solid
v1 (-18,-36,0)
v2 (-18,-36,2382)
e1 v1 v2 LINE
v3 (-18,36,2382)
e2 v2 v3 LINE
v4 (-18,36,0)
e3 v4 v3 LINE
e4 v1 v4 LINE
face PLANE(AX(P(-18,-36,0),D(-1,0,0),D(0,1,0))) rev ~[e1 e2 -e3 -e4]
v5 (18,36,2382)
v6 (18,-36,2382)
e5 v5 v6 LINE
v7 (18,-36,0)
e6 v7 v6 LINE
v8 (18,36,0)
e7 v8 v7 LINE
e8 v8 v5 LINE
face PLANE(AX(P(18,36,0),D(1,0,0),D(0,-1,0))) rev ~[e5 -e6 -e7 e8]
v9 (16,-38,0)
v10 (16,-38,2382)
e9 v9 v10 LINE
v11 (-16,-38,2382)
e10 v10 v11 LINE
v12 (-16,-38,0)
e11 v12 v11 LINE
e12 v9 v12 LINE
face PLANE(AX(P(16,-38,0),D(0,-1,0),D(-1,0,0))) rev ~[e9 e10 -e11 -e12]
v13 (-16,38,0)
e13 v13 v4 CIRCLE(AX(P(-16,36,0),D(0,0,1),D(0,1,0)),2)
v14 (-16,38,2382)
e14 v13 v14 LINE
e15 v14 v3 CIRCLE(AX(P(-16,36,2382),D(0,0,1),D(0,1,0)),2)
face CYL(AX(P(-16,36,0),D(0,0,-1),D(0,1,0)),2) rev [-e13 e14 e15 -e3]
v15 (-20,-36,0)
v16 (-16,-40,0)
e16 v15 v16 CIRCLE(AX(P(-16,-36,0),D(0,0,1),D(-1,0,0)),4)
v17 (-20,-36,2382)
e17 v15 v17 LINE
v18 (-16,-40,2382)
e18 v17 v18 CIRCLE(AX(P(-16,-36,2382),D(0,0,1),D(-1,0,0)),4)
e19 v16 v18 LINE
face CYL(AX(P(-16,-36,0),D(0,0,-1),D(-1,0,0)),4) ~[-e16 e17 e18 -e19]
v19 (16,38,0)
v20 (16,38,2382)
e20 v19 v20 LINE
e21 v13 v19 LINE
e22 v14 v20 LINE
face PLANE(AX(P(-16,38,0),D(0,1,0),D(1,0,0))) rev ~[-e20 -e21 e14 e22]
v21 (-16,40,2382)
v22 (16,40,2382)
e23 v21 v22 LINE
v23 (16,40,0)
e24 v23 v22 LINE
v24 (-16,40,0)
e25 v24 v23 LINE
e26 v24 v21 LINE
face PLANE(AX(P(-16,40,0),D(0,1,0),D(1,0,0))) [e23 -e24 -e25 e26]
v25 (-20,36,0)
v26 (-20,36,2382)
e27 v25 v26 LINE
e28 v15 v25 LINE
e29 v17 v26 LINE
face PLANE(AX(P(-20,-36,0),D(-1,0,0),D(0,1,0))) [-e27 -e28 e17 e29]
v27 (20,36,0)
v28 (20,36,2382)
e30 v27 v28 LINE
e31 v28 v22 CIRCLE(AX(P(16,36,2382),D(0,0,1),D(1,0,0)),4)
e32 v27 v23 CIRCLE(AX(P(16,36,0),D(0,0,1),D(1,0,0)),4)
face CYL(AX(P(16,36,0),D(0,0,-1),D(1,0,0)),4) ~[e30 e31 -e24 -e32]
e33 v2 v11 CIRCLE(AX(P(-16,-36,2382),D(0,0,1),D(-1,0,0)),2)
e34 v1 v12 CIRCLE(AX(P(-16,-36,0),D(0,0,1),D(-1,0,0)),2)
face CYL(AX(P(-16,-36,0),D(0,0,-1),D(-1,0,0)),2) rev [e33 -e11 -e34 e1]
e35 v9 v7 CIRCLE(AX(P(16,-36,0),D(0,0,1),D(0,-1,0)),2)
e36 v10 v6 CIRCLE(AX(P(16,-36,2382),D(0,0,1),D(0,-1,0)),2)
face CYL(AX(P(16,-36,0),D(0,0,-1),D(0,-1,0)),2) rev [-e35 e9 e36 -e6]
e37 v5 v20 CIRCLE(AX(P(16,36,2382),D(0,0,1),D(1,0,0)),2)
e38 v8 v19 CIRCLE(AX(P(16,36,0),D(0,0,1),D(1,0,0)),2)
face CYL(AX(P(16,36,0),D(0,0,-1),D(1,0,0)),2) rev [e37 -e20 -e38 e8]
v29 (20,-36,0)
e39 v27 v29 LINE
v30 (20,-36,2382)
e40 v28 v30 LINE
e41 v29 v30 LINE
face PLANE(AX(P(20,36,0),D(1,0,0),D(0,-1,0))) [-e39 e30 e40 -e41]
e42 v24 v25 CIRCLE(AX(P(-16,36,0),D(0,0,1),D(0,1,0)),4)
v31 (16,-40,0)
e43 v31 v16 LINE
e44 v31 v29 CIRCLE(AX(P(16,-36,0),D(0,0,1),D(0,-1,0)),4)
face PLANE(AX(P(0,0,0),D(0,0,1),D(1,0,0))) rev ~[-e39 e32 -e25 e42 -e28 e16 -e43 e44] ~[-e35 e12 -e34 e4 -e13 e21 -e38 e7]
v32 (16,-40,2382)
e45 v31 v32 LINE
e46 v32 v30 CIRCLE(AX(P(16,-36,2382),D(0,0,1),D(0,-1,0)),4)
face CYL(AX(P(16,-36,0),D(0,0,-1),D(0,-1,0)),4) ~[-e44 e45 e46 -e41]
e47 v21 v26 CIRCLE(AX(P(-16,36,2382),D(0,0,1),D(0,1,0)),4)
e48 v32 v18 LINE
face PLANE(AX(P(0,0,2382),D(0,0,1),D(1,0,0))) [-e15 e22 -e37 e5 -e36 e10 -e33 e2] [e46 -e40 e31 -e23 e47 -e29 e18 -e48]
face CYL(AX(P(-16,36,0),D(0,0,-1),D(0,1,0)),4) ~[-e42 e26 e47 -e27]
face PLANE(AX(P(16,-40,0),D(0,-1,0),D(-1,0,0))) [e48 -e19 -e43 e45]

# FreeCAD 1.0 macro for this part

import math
import FreeCAD as App
import Part
import Sketcher

V = App.Vector

doc = App.newDocument("Part")
body = doc.addObject("PartDesign::Body", "Body")

# Sketch on XY plane
sketch1 = body.newObject("Sketcher::SketchObject", "Sketch")
sketch1.AttachmentSupport = (doc.getObject("XY_Plane"), [""])
sketch1.MapMode = "FlatFace"
sketch1.addGeometry(Part.LineSegment(V(-20, 36, 0), V(-20, -36, 0)), False)
sketch1.addGeometry(Part.ArcOfCircle(Part.Circle(V(-16, -36, 0), V(0, 0, 1), 4), math.radians(180), math.radians(270)), False)
sketch1.addGeometry(Part.LineSegment(V(-16, -40, 0), V(16, -40, 0)), False)
sketch1.addGeometry(Part.ArcOfCircle(Part.Circle(V(16, -36, 0), V(0, 0, 1), 4), math.radians(-90), math.radians(0)), False)
sketch1.addGeometry(Part.LineSegment(V(20, -36, 0), V(20, 36, 0)), False)
sketch1.addGeometry(Part.ArcOfCircle(Part.Circle(V(16, 36, 0), V(0, 0, 1), 4), math.radians(0), math.radians(90)), False)
sketch1.addGeometry(Part.LineSegment(V(16, 40, 0), V(-16, 40, 0)), False)
sketch1.addGeometry(Part.ArcOfCircle(Part.Circle(V(-16, 36, 0), V(0, 0, 1), 4), math.radians(90), math.radians(180)), False)
sketch1.addGeometry(Part.ArcOfCircle(Part.Circle(V(-16, 36, 0), V(0, 0, 1), 2), math.radians(90), math.radians(180)), False)
sketch1.addGeometry(Part.LineSegment(V(-16, 38, 0), V(16, 38, 0)), False)
sketch1.addGeometry(Part.ArcOfCircle(Part.Circle(V(16, 36, 0), V(0, 0, 1), 2), math.radians(0), math.radians(90)), False)
sketch1.addGeometry(Part.LineSegment(V(18, 36, 0), V(18, -36, 0)), False)
sketch1.addGeometry(Part.ArcOfCircle(Part.Circle(V(16, -36, 0), V(0, 0, 1), 2), math.radians(-90), math.radians(0)), False)
sketch1.addGeometry(Part.LineSegment(V(16, -38, 0), V(-16, -38, 0)), False)
sketch1.addGeometry(Part.ArcOfCircle(Part.Circle(V(-16, -36, 0), V(0, 0, 1), 2), math.radians(180), math.radians(270)), False)
sketch1.addGeometry(Part.LineSegment(V(-18, -36, 0), V(-18, 36, 0)), False)
sketch1.addConstraint(Sketcher.Constraint("Tangent", 0, 2, 1, 1))
sketch1.addConstraint(Sketcher.Constraint("Tangent", 1, 2, 2, 1))
sketch1.addConstraint(Sketcher.Constraint("Tangent", 2, 2, 3, 1))
sketch1.addConstraint(Sketcher.Constraint("Tangent", 3, 2, 4, 1))
sketch1.addConstraint(Sketcher.Constraint("Tangent", 4, 2, 5, 1))
sketch1.addConstraint(Sketcher.Constraint("Tangent", 5, 2, 6, 1))
sketch1.addConstraint(Sketcher.Constraint("Tangent", 6, 2, 7, 1))
sketch1.addConstraint(Sketcher.Constraint("Tangent", 7, 2, 0, 1))
sketch1.addConstraint(Sketcher.Constraint("Tangent", 8, 1, 9, 1))
sketch1.addConstraint(Sketcher.Constraint("Tangent", 9, 2, 10, 2))
sketch1.addConstraint(Sketcher.Constraint("Tangent", 10, 1, 11, 1))
sketch1.addConstraint(Sketcher.Constraint("Tangent", 11, 2, 12, 2))
sketch1.addConstraint(Sketcher.Constraint("Tangent", 12, 1, 13, 1))
sketch1.addConstraint(Sketcher.Constraint("Tangent", 13, 2, 14, 2))
sketch1.addConstraint(Sketcher.Constraint("Tangent", 14, 1, 15, 1))
sketch1.addConstraint(Sketcher.Constraint("Tangent", 15, 2, 8, 2))
sketch1.addConstraint(Sketcher.Constraint("Vertical", 0))
sketch1.addConstraint(Sketcher.Constraint("Horizontal", 2))
sketch1.addConstraint(Sketcher.Constraint("Vertical", 4))
sketch1.addConstraint(Sketcher.Constraint("Horizontal", 6))
sketch1.addConstraint(Sketcher.Constraint("Horizontal", 9))
sketch1.addConstraint(Sketcher.Constraint("Vertical", 11))
sketch1.addConstraint(Sketcher.Constraint("Horizontal", 13))
sketch1.addConstraint(Sketcher.Constraint("Vertical", 15))
sketch1.addConstraint(Sketcher.Constraint("Coincident", 8, 3, 7, 3))
sketch1.addConstraint(Sketcher.Constraint("Coincident", 10, 3, 5, 3))
sketch1.addConstraint(Sketcher.Constraint("Coincident", 12, 3, 3, 3))
sketch1.addConstraint(Sketcher.Constraint("Equal", 1, 3))
sketch1.addConstraint(Sketcher.Constraint("Equal", 3, 5))
sketch1.addConstraint(Sketcher.Constraint("Equal", 5, 7))
sketch1.addConstraint(Sketcher.Constraint("Equal", 12, 14))
sketch1.addConstraint(Sketcher.Constraint("Symmetric", 1, 3, 5, 3, -1, 1))
sketch1.addConstraint(Sketcher.Constraint("Radius", 1, 4.0))
sketch1.addConstraint(Sketcher.Constraint("Radius", 8, 2.0))
sketch1.addConstraint(Sketcher.Constraint("DistanceX", 0, 2, -1, 1, 20.0))
sketch1.addConstraint(Sketcher.Constraint("DistanceY", 1, 2, -1, 1, 40.0))
pad1 = body.newObject("PartDesign::Pad", "Pad")
pad1.Profile = sketch1
pad1.Length = 2382

doc.recompute()
